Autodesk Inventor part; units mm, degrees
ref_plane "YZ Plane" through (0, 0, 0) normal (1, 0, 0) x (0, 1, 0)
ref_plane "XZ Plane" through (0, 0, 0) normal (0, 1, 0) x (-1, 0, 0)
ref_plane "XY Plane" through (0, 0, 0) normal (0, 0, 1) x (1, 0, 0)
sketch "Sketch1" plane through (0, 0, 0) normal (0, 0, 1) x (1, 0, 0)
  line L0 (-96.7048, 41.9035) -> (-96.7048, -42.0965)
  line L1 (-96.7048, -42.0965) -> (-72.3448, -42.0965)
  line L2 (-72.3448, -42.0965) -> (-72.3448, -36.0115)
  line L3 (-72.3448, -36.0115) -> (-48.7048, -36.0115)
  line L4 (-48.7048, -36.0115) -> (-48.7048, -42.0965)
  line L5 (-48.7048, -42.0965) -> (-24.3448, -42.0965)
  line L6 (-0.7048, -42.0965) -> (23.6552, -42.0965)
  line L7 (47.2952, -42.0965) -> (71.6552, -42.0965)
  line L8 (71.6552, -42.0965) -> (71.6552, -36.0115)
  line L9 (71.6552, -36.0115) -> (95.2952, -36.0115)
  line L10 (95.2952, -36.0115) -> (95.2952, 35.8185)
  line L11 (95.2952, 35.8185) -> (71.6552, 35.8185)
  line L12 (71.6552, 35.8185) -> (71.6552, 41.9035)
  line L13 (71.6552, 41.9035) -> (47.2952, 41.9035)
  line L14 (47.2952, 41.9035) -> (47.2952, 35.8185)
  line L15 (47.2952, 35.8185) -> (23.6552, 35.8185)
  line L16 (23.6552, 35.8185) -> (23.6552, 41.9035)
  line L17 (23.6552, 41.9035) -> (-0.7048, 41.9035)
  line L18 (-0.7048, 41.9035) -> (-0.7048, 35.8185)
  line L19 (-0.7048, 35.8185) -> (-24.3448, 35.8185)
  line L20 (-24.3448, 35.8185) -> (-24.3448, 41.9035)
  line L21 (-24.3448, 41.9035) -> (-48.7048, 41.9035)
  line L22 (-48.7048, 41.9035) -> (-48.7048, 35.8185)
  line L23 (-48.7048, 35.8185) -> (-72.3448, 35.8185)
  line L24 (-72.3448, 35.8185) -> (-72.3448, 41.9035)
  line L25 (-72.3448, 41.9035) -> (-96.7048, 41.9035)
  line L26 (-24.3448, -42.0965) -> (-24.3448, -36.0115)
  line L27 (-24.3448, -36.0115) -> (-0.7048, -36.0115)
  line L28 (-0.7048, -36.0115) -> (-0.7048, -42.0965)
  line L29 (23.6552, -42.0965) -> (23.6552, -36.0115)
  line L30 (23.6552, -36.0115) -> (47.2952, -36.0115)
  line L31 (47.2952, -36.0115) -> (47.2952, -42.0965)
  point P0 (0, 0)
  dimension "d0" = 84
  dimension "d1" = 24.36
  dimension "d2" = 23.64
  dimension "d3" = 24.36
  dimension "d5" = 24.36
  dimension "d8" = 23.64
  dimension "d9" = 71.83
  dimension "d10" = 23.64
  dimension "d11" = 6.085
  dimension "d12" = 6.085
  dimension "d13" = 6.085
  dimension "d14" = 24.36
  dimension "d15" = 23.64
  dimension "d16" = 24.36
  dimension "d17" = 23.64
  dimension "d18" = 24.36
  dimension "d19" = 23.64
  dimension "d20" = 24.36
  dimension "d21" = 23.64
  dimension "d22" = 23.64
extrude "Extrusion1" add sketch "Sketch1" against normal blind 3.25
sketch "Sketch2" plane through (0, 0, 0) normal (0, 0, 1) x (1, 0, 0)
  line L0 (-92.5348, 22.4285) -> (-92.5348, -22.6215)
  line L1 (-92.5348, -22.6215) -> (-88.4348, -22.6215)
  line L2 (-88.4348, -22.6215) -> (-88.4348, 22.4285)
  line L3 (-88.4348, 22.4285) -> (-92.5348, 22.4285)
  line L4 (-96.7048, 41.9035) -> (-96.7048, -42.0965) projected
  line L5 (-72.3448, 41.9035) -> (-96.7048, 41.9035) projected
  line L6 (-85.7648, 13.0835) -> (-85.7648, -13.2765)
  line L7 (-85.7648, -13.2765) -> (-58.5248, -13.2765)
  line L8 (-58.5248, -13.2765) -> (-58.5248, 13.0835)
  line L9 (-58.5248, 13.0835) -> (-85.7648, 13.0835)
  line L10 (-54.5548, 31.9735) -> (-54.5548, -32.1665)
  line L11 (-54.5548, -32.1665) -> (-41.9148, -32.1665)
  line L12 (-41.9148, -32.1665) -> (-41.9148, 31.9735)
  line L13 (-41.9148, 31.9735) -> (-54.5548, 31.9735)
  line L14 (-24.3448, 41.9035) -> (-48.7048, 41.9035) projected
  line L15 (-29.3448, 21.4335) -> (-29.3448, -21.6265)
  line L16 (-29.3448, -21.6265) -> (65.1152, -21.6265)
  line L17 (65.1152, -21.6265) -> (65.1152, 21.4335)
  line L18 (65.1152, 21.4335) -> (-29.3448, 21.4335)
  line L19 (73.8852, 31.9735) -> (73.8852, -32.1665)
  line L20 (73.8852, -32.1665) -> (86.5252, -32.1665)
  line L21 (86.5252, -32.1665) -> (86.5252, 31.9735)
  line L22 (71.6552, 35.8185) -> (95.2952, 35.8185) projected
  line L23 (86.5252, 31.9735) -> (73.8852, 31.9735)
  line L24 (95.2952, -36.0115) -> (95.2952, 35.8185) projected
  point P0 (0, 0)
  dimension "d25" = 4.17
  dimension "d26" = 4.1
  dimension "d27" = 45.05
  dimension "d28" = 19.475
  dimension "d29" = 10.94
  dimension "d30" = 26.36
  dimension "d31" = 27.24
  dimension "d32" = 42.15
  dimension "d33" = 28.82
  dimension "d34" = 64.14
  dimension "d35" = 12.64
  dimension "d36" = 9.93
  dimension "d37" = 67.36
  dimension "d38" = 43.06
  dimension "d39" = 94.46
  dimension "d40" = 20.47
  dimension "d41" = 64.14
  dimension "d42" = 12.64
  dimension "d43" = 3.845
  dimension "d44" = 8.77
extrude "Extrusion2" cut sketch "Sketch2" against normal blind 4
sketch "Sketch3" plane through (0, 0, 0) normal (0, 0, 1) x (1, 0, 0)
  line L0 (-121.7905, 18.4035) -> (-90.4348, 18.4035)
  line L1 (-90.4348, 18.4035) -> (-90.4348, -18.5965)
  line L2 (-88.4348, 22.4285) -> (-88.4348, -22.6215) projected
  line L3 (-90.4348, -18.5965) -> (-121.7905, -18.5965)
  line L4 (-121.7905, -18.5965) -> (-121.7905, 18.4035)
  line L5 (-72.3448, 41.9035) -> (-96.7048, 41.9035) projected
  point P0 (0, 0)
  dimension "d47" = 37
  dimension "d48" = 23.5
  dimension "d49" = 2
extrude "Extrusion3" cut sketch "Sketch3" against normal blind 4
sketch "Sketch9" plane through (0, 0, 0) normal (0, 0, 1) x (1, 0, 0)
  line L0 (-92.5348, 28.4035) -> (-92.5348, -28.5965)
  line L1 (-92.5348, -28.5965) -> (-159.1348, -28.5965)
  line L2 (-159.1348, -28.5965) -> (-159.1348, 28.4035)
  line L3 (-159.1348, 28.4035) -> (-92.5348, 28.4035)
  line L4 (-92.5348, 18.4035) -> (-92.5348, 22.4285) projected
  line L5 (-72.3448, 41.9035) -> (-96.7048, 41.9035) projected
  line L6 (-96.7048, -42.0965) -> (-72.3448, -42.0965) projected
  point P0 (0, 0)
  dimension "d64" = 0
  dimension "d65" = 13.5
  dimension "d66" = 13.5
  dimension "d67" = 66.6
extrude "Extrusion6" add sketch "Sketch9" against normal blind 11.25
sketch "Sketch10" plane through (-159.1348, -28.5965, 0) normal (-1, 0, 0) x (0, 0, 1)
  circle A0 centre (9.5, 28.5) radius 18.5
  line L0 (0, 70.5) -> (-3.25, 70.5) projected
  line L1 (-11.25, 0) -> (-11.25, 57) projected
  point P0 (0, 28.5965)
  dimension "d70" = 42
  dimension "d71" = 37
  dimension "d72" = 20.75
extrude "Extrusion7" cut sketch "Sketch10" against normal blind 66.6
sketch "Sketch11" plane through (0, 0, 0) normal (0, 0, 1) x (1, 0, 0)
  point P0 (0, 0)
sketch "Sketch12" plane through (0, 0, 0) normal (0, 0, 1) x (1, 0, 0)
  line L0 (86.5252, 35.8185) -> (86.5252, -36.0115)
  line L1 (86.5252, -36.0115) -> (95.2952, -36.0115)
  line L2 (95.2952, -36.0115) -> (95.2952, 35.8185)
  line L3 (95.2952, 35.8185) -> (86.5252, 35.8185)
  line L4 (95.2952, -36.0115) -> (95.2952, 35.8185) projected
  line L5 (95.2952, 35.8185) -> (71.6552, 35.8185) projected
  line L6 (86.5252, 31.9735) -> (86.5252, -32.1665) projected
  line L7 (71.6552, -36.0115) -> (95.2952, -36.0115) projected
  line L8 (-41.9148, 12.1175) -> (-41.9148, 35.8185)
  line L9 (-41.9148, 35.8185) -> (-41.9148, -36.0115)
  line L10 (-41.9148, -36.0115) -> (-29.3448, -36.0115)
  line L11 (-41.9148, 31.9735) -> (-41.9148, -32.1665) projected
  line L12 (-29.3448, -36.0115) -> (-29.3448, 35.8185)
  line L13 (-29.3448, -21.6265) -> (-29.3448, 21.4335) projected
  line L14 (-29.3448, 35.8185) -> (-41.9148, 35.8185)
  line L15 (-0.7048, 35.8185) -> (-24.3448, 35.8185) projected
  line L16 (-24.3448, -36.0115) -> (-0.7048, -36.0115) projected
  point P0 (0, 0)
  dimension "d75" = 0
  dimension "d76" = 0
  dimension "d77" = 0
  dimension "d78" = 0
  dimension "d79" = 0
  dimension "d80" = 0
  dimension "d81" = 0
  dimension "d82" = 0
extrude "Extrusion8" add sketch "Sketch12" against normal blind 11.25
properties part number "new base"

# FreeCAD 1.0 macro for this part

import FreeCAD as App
import Part
import Sketcher


def add_polygon(sketch, points):
    """Adds a closed chain of lines whose ends are joined by coincident constraints."""
    first, n = sketch.GeometryCount, len(points)
    for a, b in zip(points, points[1:] + points[:1]):
        sketch.addGeometry(Part.LineSegment(App.Vector(*a, 0), App.Vector(*b, 0)), False)
    for i in range(n):
        sketch.addConstraint(Sketcher.Constraint("Coincident", first + i, 2, first + (i + 1) % n, 1))

doc = App.newDocument("Part")
body = doc.addObject("PartDesign::Body", "Body")

sketch1 = doc.addObject("Sketcher::SketchObject", "Sketch")
body.addObject(sketch1)
sketch1.AttachmentSupport = (doc.XY_Plane, [""])
sketch1.MapMode = "FlatFace"
add_polygon(sketch1, [(-72.3448, 41.9035), (-96.7048, 41.9035), (-96.7048, -42.0965), (-72.3448, -42.0965), (-72.3448, -36.0115), (-48.7048, -36.0115), (-48.7048, -42.0965), (-24.3448, -42.0965), (-24.3448, -36.0115), (-0.7048, -36.0115), (-0.7048, -42.0965), (23.6552, -42.0965), (23.6552, -36.0115), (47.2952, -36.0115), (47.2952, -42.0965), (71.6552, -42.0965), (71.6552, -36.0115), (95.2952, -36.0115), (95.2952, 35.8185), (71.6552, 35.8185), (71.6552, 41.9035), (47.2952, 41.9035), (47.2952, 35.8185), (23.6552, 35.8185), (23.6552, 41.9035), (-0.7048, 41.9035), (-0.7048, 35.8185), (-24.3448, 35.8185), (-24.3448, 41.9035), (-48.7048, 41.9035), (-48.7048, 35.8185), (-72.3448, 35.8185)])
sketch1.addConstraint([
    Sketcher.Constraint("Horizontal", 0),
    Sketcher.Constraint("Vertical", 1),
    Sketcher.Constraint("Horizontal", 2),
    Sketcher.Constraint("Vertical", 3),
    Sketcher.Constraint("Horizontal", 4),
    Sketcher.Constraint("Vertical", 5),
    Sketcher.Constraint("Horizontal", 6),
    Sketcher.Constraint("Vertical", 7),
    Sketcher.Constraint("Horizontal", 8),
    Sketcher.Constraint("Vertical", 9),
    Sketcher.Constraint("Horizontal", 10),
    Sketcher.Constraint("Vertical", 11),
    Sketcher.Constraint("Horizontal", 12),
    Sketcher.Constraint("Vertical", 13),
    Sketcher.Constraint("Horizontal", 14),
    Sketcher.Constraint("Vertical", 15),
    Sketcher.Constraint("Horizontal", 16),
    Sketcher.Constraint("Vertical", 17),
    Sketcher.Constraint("Horizontal", 18),
    Sketcher.Constraint("Vertical", 19),
    Sketcher.Constraint("Horizontal", 20),
    Sketcher.Constraint("Vertical", 21),
    Sketcher.Constraint("Horizontal", 22),
    Sketcher.Constraint("Vertical", 23),
    Sketcher.Constraint("Horizontal", 24),
    Sketcher.Constraint("Vertical", 25),
    Sketcher.Constraint("Horizontal", 26),
    Sketcher.Constraint("Vertical", 27),
    Sketcher.Constraint("Horizontal", 28),
    Sketcher.Constraint("Vertical", 29),
    Sketcher.Constraint("Horizontal", 30),
    Sketcher.Constraint("Vertical", 31),
    Sketcher.Constraint("Horizontal", 2, 2, 5, 2),
    Sketcher.Constraint("Horizontal", 4, 2, 7, 2),
    Sketcher.Constraint("Horizontal", 6, 2, 9, 2),
    Sketcher.Constraint("Horizontal", 8, 2, 11, 2),
    Sketcher.Constraint("Horizontal", 10, 2, 13, 2),
    Sketcher.Constraint("Horizontal", 12, 2, 15, 2),
    Sketcher.Constraint("Horizontal", 0, 2, 19, 2),
    Sketcher.Constraint("Horizontal", 18, 2, 21, 2),
    Sketcher.Constraint("Horizontal", 20, 2, 23, 2),
    Sketcher.Constraint("Horizontal", 22, 2, 25, 2),
    Sketcher.Constraint("Horizontal", 24, 2, 27, 2),
    Sketcher.Constraint("Horizontal", 26, 2, 29, 2),
    Sketcher.Constraint("Vertical", 15, 2, 18, 2),
    Sketcher.Constraint("Vertical", 13, 2, 20, 2),
    Sketcher.Constraint("Vertical", 11, 2, 22, 2),
    Sketcher.Constraint("Vertical", 9, 2, 24, 2),
    Sketcher.Constraint("Vertical", 7, 2, 26, 2),
    Sketcher.Constraint("Vertical", 5, 2, 28, 2),
    Sketcher.Constraint("Vertical", 3, 2, 30, 2),
    Sketcher.Constraint("Equal", 2, 6),
    Sketcher.Constraint("Equal", 4, 8),
    Sketcher.Constraint("Equal", 6, 10),
    Sketcher.Constraint("Equal", 8, 12),
    Sketcher.Constraint("Equal", 10, 14),
    Sketcher.Constraint("Equal", 12, 16),
    Sketcher.Constraint("Equal", 15, 19),
    Sketcher.Constraint("DistanceY", 1, 2, 1, 1, 84.0),
    Sketcher.Constraint("DistanceX", 0, 2, 0, 1, 24.36),
    Sketcher.Constraint("DistanceX", 4, 1, 4, 2, 23.64),
    Sketcher.Constraint("DistanceY", 17, 1, 17, 2, 71.83),
    Sketcher.Constraint("DistanceX", 0, 2, -1, 1, 96.7048),
    Sketcher.Constraint("DistanceY", -1, 1, 0, 2, 41.9035),
])
pad1 = doc.addObject("PartDesign::Pad", "Pad")
body.addObject(pad1)
pad1.Profile = sketch1
pad1.Length = 3.25
pad1.Reversed = True

sketch2 = doc.addObject("Sketcher::SketchObject", "Sketch001")
body.addObject(sketch2)
sketch2.AttachmentSupport = (doc.XY_Plane, [""])
sketch2.MapMode = "FlatFace"
add_polygon(sketch2, [(-88.4348, 22.4285), (-92.5348, 22.4285), (-92.5348, -22.6215), (-88.4348, -22.6215)])
add_polygon(sketch2, [(-58.5248, 13.0835), (-85.7648, 13.0835), (-85.7648, -13.2765), (-58.5248, -13.2765)])
add_polygon(sketch2, [(-41.9148, 31.9735), (-54.5548, 31.9735), (-54.5548, -32.1665), (-41.9148, -32.1665)])
add_polygon(sketch2, [(65.1152, 21.4335), (-29.3448, 21.4335), (-29.3448, -21.6265), (65.1152, -21.6265)])
add_polygon(sketch2, [(86.5252, 31.9735), (73.8852, 31.9735), (73.8852, -32.1665), (86.5252, -32.1665)])
sketch2.addConstraint([
    Sketcher.Constraint("Horizontal", 0),
    Sketcher.Constraint("Vertical", 1),
    Sketcher.Constraint("Horizontal", 2),
    Sketcher.Constraint("Vertical", 3),
    Sketcher.Constraint("Horizontal", 4),
    Sketcher.Constraint("Vertical", 5),
    Sketcher.Constraint("Horizontal", 6),
    Sketcher.Constraint("Vertical", 7),
    Sketcher.Constraint("Horizontal", 8),
    Sketcher.Constraint("Vertical", 9),
    Sketcher.Constraint("Horizontal", 10),
    Sketcher.Constraint("Vertical", 11),
    Sketcher.Constraint("Horizontal", 12),
    Sketcher.Constraint("Vertical", 13),
    Sketcher.Constraint("Horizontal", 14),
    Sketcher.Constraint("Vertical", 15),
    Sketcher.Constraint("Horizontal", 16),
    Sketcher.Constraint("Vertical", 17),
    Sketcher.Constraint("Horizontal", 18),
    Sketcher.Constraint("Vertical", 19),
    Sketcher.Constraint("Horizontal", 11, 2, 16, 2),
    Sketcher.Constraint("Horizontal", 10, 2, 17, 2),
    Sketcher.Constraint("Equal", 10, 16),
    Sketcher.Constraint("DistanceX", 0, 2, 0, 1, 4.1),
    Sketcher.Constraint("DistanceX", 4, 2, 4, 1, 27.24),
    Sketcher.Constraint("DistanceX", 8, 2, 8, 1, 12.64),
    Sketcher.Constraint("DistanceX", 12, 2, 12, 1, 94.46),
    Sketcher.Constraint("DistanceY", 1, 2, 1, 1, 45.05),
    Sketcher.Constraint("DistanceY", 5, 2, 5, 1, 26.36),
    Sketcher.Constraint("DistanceY", 9, 2, 9, 1, 64.14),
    Sketcher.Constraint("DistanceY", 13, 2, 13, 1, 43.06),
    Sketcher.Constraint("DistanceX", 15, 2, 16, 2, 8.77),
    Sketcher.Constraint("DistanceY", 10, 2, 12, 2, 53.6),
    Sketcher.Constraint("DistanceX", 11, 2, 16, 2, 115.8),
    Sketcher.Constraint("DistanceX", 3, 2, 4, 2, 2.67),
    Sketcher.Constraint("DistanceX", 7, 2, 8, 2, 3.97),
    Sketcher.Constraint("DistanceY", 7, 2, 8, 2, 18.89),
    Sketcher.Constraint("DistanceY", 4, 2, 3, 2, 9.345),
    Sketcher.Constraint("DistanceX", 0, 2, -1, 1, 92.5348),
    Sketcher.Constraint("DistanceY", -1, 1, 0, 2, 22.4285),
])
pocket1 = doc.addObject("PartDesign::Pocket", "Pocket")
body.addObject(pocket1)
pocket1.Profile = sketch2
pocket1.Length = 4

sketch3 = doc.addObject("Sketcher::SketchObject", "Sketch002")
body.addObject(sketch3)
sketch3.AttachmentSupport = (doc.XY_Plane, [""])
sketch3.MapMode = "FlatFace"
add_polygon(sketch3, [(-90.4348, 18.4035), (-121.7905, 18.4035), (-121.7905, -18.5965), (-90.4348, -18.5965)])
sketch3.addConstraint([
    Sketcher.Constraint("Horizontal", 0),
    Sketcher.Constraint("Vertical", 1),
    Sketcher.Constraint("Horizontal", 2),
    Sketcher.Constraint("Vertical", 3),
    Sketcher.Constraint("DistanceY", 1, 2, 1, 1, 37.0),
    Sketcher.Constraint("DistanceX", 0, 2, 0, 1, 31.3557),
    Sketcher.Constraint("DistanceX", 0, 2, -1, 1, 121.7905),
    Sketcher.Constraint("DistanceY", -1, 1, 0, 2, 18.4035),
])
pocket2 = doc.addObject("PartDesign::Pocket", "Pocket001")
body.addObject(pocket2)
pocket2.Profile = sketch3
pocket2.Length = 4

sketch4 = doc.addObject("Sketcher::SketchObject", "Sketch003")
body.addObject(sketch4)
sketch4.AttachmentSupport = (doc.XY_Plane, [""])
sketch4.MapMode = "FlatFace"
add_polygon(sketch4, [(-92.5348, -28.5965), (-92.5348, 28.4035), (-159.1348, 28.4035), (-159.1348, -28.5965)])
sketch4.addConstraint([
    Sketcher.Constraint("Vertical", 0),
    Sketcher.Constraint("Horizontal", 1),
    Sketcher.Constraint("Vertical", 2),
    Sketcher.Constraint("Horizontal", 3),
    Sketcher.Constraint("DistanceX", 1, 2, 1, 1, 66.6),
    Sketcher.Constraint("DistanceY", 0, 1, 0, 2, 57.0),
    Sketcher.Constraint("DistanceX", 0, 2, -1, 1, 92.5348),
    Sketcher.Constraint("DistanceY", -1, 1, 0, 2, 28.4035),
])
pad2 = doc.addObject("PartDesign::Pad", "Pad001")
body.addObject(pad2)
pad2.Profile = sketch4
pad2.Length = 11.25
pad2.Reversed = True

sketch5 = doc.addObject("Sketcher::SketchObject", "Sketch004")
body.addObject(sketch5)
sketch5.AttachmentSupport = (doc.YZ_Plane, [""])
sketch5.MapMode = "FlatFace"
sketch5.AttachmentOffset = App.Placement(App.Vector(0, 0, -159.1348), App.Rotation())
sketch5.addGeometry(Part.Circle(App.Vector(-0.0965, 9.5, 0), App.Vector(0, 0, 1), 18.5), False)
sketch5.addConstraint([
    Sketcher.Constraint("Diameter", 0, 37.0),
    Sketcher.Constraint("DistanceY", -1, 1, 0, 3, 9.5),
    Sketcher.Constraint("DistanceX", 0, 3, -1, 1, 0.0965),
])
pocket3 = doc.addObject("PartDesign::Pocket", "Pocket002")
body.addObject(pocket3)
pocket3.Profile = sketch5
pocket3.Length = 66.6
pocket3.Reversed = True

sketch6 = doc.addObject("Sketcher::SketchObject", "Sketch005")
body.addObject(sketch6)
sketch6.AttachmentSupport = (doc.XY_Plane, [""])
sketch6.MapMode = "FlatFace"
add_polygon(sketch6, [(95.2952, 35.8185), (86.5252, 35.8185), (86.5252, -36.0115), (95.2952, -36.0115)])
add_polygon(sketch6, [(-41.9148, 35.8185), (-41.9148, -36.0115), (-29.3448, -36.0115), (-29.3448, 35.8185)])
sketch6.addConstraint([
    Sketcher.Constraint("Horizontal", 0),
    Sketcher.Constraint("Vertical", 1),
    Sketcher.Constraint("Horizontal", 2),
    Sketcher.Constraint("Vertical", 3),
    Sketcher.Constraint("Vertical", 4),
    Sketcher.Constraint("Horizontal", 5),
    Sketcher.Constraint("Vertical", 6),
    Sketcher.Constraint("Horizontal", 7),
    Sketcher.Constraint("Horizontal", 2, 2, 4, 2),
    Sketcher.Constraint("Horizontal", 3, 2, 6, 2),
    Sketcher.Constraint("DistanceX", 0, 2, 0, 1, 8.77),
    Sketcher.Constraint("DistanceX", 5, 1, 5, 2, 12.57),
    Sketcher.Constraint("DistanceY", 1, 2, 1, 1, 71.83),
    Sketcher.Constraint("DistanceX", 4, 2, 1, 2, 128.44),
    Sketcher.Constraint("DistanceX", -1, 1, 0, 2, 86.5252),
    Sketcher.Constraint("DistanceY", -1, 1, 0, 2, 35.8185),
])
pad3 = doc.addObject("PartDesign::Pad", "Pad002")
body.addObject(pad3)
pad3.Profile = sketch6
pad3.Length = 11.25
pad3.Reversed = True

doc.recompute()
